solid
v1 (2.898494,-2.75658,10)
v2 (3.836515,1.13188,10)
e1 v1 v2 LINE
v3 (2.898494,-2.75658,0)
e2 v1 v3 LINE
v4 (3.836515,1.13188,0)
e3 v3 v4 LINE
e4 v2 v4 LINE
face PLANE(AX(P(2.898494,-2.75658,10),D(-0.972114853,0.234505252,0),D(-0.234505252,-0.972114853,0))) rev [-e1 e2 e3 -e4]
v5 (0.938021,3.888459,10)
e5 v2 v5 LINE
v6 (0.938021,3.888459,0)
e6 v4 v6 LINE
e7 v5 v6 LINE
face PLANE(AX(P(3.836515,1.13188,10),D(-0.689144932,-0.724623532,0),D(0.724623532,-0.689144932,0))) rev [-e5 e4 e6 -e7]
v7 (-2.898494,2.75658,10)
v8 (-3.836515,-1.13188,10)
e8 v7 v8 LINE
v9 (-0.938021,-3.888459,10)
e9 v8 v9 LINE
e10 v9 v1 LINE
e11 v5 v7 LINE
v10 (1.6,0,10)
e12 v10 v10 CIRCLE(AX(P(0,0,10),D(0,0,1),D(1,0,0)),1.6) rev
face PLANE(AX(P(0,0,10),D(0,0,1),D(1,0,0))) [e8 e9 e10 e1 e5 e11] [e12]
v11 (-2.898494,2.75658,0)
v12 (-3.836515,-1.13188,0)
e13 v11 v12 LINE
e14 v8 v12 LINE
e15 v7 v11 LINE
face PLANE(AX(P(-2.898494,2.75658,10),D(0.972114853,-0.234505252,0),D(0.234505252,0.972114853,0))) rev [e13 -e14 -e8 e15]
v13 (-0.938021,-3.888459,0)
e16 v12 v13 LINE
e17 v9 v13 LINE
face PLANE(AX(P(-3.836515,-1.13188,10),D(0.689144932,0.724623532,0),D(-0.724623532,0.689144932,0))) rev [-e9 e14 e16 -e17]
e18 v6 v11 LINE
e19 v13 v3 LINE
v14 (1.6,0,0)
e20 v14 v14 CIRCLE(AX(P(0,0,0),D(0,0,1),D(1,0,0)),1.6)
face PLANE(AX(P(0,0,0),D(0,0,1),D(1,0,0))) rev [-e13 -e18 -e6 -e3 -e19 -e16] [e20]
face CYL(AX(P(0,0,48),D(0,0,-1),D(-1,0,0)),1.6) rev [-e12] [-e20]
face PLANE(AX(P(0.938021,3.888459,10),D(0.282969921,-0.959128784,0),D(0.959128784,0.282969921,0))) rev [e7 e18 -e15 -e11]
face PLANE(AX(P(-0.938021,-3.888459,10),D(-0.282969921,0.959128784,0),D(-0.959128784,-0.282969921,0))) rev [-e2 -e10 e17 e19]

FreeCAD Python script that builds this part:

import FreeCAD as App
import Part
import Sketcher


def add_polygon(sketch, points):
    """Adds a closed chain of lines whose ends are joined by coincident constraints."""
    first, n = sketch.GeometryCount, len(points)
    for a, b in zip(points, points[1:] + points[:1]):
        sketch.addGeometry(Part.LineSegment(App.Vector(*a, 0), App.Vector(*b, 0)), False)
    for i in range(n):
        sketch.addConstraint(Sketcher.Constraint("Coincident", first + i, 2, first + (i + 1) % n, 1))

doc = App.newDocument("Part")
body = doc.addObject("PartDesign::Body", "Body")

# Sketch on XY plane
sketch1 = body.newObject("Sketcher::SketchObject", "Sketch")
sketch1.AttachmentSupport = (doc.getObject("XY_Plane"), [""])
sketch1.MapMode = "FlatFace"
add_polygon(sketch1, [(2.9, -2.8), (3.8, 1.1), (0.9, 3.9), (-2.9, 2.8), (-3.8, -1.1), (-0.9, -3.9)])  # lines 0-5
sketch1.addConstraint([
    Sketcher.Constraint("Symmetric", 0, 2, 3, 2, -1, 1),
    Sketcher.Constraint("Symmetric", 1, 2, 4, 2, -1, 1),
    Sketcher.Constraint("Symmetric", 2, 2, 5, 2, -1, 1),
    Sketcher.Constraint("Equal", 0, 1),
    Sketcher.Constraint("Equal", 1, 2),
    Sketcher.Constraint("Distance", 0, 4.0),
    Sketcher.Constraint("DistanceY", 0, 2, 2, 2, 1.6247),
    Sketcher.Constraint("DistanceY", -1, 1, 0, 2, 1.13188),
    Sketcher.Constraint("DistanceX", -1, 1, 1, 2, 0.938021),
])
pad1 = body.newObject("PartDesign::Pad", "Pad")
pad1.Profile = sketch1
pad1.Length = 10

# Sketch on XY plane
sketch2 = body.newObject("Sketcher::SketchObject", "Sketch001")
sketch2.AttachmentSupport = (doc.getObject("XY_Plane"), [""])
sketch2.MapMode = "FlatFace"
sketch2.addGeometry(Part.Circle(App.Vector(0, 0, 0), App.Vector(0, 0, 1), 1.6), False)
sketch2.addConstraint([
    Sketcher.Constraint("Coincident", 0, 3, -1, 1),
    Sketcher.Constraint("Diameter", 0, 3.2),
])
pocket1 = body.newObject("PartDesign::Pocket", "Pocket")
pocket1.Profile = sketch2
pocket1.Length = 48
pocket1.Reversed = True

doc.recompute()
